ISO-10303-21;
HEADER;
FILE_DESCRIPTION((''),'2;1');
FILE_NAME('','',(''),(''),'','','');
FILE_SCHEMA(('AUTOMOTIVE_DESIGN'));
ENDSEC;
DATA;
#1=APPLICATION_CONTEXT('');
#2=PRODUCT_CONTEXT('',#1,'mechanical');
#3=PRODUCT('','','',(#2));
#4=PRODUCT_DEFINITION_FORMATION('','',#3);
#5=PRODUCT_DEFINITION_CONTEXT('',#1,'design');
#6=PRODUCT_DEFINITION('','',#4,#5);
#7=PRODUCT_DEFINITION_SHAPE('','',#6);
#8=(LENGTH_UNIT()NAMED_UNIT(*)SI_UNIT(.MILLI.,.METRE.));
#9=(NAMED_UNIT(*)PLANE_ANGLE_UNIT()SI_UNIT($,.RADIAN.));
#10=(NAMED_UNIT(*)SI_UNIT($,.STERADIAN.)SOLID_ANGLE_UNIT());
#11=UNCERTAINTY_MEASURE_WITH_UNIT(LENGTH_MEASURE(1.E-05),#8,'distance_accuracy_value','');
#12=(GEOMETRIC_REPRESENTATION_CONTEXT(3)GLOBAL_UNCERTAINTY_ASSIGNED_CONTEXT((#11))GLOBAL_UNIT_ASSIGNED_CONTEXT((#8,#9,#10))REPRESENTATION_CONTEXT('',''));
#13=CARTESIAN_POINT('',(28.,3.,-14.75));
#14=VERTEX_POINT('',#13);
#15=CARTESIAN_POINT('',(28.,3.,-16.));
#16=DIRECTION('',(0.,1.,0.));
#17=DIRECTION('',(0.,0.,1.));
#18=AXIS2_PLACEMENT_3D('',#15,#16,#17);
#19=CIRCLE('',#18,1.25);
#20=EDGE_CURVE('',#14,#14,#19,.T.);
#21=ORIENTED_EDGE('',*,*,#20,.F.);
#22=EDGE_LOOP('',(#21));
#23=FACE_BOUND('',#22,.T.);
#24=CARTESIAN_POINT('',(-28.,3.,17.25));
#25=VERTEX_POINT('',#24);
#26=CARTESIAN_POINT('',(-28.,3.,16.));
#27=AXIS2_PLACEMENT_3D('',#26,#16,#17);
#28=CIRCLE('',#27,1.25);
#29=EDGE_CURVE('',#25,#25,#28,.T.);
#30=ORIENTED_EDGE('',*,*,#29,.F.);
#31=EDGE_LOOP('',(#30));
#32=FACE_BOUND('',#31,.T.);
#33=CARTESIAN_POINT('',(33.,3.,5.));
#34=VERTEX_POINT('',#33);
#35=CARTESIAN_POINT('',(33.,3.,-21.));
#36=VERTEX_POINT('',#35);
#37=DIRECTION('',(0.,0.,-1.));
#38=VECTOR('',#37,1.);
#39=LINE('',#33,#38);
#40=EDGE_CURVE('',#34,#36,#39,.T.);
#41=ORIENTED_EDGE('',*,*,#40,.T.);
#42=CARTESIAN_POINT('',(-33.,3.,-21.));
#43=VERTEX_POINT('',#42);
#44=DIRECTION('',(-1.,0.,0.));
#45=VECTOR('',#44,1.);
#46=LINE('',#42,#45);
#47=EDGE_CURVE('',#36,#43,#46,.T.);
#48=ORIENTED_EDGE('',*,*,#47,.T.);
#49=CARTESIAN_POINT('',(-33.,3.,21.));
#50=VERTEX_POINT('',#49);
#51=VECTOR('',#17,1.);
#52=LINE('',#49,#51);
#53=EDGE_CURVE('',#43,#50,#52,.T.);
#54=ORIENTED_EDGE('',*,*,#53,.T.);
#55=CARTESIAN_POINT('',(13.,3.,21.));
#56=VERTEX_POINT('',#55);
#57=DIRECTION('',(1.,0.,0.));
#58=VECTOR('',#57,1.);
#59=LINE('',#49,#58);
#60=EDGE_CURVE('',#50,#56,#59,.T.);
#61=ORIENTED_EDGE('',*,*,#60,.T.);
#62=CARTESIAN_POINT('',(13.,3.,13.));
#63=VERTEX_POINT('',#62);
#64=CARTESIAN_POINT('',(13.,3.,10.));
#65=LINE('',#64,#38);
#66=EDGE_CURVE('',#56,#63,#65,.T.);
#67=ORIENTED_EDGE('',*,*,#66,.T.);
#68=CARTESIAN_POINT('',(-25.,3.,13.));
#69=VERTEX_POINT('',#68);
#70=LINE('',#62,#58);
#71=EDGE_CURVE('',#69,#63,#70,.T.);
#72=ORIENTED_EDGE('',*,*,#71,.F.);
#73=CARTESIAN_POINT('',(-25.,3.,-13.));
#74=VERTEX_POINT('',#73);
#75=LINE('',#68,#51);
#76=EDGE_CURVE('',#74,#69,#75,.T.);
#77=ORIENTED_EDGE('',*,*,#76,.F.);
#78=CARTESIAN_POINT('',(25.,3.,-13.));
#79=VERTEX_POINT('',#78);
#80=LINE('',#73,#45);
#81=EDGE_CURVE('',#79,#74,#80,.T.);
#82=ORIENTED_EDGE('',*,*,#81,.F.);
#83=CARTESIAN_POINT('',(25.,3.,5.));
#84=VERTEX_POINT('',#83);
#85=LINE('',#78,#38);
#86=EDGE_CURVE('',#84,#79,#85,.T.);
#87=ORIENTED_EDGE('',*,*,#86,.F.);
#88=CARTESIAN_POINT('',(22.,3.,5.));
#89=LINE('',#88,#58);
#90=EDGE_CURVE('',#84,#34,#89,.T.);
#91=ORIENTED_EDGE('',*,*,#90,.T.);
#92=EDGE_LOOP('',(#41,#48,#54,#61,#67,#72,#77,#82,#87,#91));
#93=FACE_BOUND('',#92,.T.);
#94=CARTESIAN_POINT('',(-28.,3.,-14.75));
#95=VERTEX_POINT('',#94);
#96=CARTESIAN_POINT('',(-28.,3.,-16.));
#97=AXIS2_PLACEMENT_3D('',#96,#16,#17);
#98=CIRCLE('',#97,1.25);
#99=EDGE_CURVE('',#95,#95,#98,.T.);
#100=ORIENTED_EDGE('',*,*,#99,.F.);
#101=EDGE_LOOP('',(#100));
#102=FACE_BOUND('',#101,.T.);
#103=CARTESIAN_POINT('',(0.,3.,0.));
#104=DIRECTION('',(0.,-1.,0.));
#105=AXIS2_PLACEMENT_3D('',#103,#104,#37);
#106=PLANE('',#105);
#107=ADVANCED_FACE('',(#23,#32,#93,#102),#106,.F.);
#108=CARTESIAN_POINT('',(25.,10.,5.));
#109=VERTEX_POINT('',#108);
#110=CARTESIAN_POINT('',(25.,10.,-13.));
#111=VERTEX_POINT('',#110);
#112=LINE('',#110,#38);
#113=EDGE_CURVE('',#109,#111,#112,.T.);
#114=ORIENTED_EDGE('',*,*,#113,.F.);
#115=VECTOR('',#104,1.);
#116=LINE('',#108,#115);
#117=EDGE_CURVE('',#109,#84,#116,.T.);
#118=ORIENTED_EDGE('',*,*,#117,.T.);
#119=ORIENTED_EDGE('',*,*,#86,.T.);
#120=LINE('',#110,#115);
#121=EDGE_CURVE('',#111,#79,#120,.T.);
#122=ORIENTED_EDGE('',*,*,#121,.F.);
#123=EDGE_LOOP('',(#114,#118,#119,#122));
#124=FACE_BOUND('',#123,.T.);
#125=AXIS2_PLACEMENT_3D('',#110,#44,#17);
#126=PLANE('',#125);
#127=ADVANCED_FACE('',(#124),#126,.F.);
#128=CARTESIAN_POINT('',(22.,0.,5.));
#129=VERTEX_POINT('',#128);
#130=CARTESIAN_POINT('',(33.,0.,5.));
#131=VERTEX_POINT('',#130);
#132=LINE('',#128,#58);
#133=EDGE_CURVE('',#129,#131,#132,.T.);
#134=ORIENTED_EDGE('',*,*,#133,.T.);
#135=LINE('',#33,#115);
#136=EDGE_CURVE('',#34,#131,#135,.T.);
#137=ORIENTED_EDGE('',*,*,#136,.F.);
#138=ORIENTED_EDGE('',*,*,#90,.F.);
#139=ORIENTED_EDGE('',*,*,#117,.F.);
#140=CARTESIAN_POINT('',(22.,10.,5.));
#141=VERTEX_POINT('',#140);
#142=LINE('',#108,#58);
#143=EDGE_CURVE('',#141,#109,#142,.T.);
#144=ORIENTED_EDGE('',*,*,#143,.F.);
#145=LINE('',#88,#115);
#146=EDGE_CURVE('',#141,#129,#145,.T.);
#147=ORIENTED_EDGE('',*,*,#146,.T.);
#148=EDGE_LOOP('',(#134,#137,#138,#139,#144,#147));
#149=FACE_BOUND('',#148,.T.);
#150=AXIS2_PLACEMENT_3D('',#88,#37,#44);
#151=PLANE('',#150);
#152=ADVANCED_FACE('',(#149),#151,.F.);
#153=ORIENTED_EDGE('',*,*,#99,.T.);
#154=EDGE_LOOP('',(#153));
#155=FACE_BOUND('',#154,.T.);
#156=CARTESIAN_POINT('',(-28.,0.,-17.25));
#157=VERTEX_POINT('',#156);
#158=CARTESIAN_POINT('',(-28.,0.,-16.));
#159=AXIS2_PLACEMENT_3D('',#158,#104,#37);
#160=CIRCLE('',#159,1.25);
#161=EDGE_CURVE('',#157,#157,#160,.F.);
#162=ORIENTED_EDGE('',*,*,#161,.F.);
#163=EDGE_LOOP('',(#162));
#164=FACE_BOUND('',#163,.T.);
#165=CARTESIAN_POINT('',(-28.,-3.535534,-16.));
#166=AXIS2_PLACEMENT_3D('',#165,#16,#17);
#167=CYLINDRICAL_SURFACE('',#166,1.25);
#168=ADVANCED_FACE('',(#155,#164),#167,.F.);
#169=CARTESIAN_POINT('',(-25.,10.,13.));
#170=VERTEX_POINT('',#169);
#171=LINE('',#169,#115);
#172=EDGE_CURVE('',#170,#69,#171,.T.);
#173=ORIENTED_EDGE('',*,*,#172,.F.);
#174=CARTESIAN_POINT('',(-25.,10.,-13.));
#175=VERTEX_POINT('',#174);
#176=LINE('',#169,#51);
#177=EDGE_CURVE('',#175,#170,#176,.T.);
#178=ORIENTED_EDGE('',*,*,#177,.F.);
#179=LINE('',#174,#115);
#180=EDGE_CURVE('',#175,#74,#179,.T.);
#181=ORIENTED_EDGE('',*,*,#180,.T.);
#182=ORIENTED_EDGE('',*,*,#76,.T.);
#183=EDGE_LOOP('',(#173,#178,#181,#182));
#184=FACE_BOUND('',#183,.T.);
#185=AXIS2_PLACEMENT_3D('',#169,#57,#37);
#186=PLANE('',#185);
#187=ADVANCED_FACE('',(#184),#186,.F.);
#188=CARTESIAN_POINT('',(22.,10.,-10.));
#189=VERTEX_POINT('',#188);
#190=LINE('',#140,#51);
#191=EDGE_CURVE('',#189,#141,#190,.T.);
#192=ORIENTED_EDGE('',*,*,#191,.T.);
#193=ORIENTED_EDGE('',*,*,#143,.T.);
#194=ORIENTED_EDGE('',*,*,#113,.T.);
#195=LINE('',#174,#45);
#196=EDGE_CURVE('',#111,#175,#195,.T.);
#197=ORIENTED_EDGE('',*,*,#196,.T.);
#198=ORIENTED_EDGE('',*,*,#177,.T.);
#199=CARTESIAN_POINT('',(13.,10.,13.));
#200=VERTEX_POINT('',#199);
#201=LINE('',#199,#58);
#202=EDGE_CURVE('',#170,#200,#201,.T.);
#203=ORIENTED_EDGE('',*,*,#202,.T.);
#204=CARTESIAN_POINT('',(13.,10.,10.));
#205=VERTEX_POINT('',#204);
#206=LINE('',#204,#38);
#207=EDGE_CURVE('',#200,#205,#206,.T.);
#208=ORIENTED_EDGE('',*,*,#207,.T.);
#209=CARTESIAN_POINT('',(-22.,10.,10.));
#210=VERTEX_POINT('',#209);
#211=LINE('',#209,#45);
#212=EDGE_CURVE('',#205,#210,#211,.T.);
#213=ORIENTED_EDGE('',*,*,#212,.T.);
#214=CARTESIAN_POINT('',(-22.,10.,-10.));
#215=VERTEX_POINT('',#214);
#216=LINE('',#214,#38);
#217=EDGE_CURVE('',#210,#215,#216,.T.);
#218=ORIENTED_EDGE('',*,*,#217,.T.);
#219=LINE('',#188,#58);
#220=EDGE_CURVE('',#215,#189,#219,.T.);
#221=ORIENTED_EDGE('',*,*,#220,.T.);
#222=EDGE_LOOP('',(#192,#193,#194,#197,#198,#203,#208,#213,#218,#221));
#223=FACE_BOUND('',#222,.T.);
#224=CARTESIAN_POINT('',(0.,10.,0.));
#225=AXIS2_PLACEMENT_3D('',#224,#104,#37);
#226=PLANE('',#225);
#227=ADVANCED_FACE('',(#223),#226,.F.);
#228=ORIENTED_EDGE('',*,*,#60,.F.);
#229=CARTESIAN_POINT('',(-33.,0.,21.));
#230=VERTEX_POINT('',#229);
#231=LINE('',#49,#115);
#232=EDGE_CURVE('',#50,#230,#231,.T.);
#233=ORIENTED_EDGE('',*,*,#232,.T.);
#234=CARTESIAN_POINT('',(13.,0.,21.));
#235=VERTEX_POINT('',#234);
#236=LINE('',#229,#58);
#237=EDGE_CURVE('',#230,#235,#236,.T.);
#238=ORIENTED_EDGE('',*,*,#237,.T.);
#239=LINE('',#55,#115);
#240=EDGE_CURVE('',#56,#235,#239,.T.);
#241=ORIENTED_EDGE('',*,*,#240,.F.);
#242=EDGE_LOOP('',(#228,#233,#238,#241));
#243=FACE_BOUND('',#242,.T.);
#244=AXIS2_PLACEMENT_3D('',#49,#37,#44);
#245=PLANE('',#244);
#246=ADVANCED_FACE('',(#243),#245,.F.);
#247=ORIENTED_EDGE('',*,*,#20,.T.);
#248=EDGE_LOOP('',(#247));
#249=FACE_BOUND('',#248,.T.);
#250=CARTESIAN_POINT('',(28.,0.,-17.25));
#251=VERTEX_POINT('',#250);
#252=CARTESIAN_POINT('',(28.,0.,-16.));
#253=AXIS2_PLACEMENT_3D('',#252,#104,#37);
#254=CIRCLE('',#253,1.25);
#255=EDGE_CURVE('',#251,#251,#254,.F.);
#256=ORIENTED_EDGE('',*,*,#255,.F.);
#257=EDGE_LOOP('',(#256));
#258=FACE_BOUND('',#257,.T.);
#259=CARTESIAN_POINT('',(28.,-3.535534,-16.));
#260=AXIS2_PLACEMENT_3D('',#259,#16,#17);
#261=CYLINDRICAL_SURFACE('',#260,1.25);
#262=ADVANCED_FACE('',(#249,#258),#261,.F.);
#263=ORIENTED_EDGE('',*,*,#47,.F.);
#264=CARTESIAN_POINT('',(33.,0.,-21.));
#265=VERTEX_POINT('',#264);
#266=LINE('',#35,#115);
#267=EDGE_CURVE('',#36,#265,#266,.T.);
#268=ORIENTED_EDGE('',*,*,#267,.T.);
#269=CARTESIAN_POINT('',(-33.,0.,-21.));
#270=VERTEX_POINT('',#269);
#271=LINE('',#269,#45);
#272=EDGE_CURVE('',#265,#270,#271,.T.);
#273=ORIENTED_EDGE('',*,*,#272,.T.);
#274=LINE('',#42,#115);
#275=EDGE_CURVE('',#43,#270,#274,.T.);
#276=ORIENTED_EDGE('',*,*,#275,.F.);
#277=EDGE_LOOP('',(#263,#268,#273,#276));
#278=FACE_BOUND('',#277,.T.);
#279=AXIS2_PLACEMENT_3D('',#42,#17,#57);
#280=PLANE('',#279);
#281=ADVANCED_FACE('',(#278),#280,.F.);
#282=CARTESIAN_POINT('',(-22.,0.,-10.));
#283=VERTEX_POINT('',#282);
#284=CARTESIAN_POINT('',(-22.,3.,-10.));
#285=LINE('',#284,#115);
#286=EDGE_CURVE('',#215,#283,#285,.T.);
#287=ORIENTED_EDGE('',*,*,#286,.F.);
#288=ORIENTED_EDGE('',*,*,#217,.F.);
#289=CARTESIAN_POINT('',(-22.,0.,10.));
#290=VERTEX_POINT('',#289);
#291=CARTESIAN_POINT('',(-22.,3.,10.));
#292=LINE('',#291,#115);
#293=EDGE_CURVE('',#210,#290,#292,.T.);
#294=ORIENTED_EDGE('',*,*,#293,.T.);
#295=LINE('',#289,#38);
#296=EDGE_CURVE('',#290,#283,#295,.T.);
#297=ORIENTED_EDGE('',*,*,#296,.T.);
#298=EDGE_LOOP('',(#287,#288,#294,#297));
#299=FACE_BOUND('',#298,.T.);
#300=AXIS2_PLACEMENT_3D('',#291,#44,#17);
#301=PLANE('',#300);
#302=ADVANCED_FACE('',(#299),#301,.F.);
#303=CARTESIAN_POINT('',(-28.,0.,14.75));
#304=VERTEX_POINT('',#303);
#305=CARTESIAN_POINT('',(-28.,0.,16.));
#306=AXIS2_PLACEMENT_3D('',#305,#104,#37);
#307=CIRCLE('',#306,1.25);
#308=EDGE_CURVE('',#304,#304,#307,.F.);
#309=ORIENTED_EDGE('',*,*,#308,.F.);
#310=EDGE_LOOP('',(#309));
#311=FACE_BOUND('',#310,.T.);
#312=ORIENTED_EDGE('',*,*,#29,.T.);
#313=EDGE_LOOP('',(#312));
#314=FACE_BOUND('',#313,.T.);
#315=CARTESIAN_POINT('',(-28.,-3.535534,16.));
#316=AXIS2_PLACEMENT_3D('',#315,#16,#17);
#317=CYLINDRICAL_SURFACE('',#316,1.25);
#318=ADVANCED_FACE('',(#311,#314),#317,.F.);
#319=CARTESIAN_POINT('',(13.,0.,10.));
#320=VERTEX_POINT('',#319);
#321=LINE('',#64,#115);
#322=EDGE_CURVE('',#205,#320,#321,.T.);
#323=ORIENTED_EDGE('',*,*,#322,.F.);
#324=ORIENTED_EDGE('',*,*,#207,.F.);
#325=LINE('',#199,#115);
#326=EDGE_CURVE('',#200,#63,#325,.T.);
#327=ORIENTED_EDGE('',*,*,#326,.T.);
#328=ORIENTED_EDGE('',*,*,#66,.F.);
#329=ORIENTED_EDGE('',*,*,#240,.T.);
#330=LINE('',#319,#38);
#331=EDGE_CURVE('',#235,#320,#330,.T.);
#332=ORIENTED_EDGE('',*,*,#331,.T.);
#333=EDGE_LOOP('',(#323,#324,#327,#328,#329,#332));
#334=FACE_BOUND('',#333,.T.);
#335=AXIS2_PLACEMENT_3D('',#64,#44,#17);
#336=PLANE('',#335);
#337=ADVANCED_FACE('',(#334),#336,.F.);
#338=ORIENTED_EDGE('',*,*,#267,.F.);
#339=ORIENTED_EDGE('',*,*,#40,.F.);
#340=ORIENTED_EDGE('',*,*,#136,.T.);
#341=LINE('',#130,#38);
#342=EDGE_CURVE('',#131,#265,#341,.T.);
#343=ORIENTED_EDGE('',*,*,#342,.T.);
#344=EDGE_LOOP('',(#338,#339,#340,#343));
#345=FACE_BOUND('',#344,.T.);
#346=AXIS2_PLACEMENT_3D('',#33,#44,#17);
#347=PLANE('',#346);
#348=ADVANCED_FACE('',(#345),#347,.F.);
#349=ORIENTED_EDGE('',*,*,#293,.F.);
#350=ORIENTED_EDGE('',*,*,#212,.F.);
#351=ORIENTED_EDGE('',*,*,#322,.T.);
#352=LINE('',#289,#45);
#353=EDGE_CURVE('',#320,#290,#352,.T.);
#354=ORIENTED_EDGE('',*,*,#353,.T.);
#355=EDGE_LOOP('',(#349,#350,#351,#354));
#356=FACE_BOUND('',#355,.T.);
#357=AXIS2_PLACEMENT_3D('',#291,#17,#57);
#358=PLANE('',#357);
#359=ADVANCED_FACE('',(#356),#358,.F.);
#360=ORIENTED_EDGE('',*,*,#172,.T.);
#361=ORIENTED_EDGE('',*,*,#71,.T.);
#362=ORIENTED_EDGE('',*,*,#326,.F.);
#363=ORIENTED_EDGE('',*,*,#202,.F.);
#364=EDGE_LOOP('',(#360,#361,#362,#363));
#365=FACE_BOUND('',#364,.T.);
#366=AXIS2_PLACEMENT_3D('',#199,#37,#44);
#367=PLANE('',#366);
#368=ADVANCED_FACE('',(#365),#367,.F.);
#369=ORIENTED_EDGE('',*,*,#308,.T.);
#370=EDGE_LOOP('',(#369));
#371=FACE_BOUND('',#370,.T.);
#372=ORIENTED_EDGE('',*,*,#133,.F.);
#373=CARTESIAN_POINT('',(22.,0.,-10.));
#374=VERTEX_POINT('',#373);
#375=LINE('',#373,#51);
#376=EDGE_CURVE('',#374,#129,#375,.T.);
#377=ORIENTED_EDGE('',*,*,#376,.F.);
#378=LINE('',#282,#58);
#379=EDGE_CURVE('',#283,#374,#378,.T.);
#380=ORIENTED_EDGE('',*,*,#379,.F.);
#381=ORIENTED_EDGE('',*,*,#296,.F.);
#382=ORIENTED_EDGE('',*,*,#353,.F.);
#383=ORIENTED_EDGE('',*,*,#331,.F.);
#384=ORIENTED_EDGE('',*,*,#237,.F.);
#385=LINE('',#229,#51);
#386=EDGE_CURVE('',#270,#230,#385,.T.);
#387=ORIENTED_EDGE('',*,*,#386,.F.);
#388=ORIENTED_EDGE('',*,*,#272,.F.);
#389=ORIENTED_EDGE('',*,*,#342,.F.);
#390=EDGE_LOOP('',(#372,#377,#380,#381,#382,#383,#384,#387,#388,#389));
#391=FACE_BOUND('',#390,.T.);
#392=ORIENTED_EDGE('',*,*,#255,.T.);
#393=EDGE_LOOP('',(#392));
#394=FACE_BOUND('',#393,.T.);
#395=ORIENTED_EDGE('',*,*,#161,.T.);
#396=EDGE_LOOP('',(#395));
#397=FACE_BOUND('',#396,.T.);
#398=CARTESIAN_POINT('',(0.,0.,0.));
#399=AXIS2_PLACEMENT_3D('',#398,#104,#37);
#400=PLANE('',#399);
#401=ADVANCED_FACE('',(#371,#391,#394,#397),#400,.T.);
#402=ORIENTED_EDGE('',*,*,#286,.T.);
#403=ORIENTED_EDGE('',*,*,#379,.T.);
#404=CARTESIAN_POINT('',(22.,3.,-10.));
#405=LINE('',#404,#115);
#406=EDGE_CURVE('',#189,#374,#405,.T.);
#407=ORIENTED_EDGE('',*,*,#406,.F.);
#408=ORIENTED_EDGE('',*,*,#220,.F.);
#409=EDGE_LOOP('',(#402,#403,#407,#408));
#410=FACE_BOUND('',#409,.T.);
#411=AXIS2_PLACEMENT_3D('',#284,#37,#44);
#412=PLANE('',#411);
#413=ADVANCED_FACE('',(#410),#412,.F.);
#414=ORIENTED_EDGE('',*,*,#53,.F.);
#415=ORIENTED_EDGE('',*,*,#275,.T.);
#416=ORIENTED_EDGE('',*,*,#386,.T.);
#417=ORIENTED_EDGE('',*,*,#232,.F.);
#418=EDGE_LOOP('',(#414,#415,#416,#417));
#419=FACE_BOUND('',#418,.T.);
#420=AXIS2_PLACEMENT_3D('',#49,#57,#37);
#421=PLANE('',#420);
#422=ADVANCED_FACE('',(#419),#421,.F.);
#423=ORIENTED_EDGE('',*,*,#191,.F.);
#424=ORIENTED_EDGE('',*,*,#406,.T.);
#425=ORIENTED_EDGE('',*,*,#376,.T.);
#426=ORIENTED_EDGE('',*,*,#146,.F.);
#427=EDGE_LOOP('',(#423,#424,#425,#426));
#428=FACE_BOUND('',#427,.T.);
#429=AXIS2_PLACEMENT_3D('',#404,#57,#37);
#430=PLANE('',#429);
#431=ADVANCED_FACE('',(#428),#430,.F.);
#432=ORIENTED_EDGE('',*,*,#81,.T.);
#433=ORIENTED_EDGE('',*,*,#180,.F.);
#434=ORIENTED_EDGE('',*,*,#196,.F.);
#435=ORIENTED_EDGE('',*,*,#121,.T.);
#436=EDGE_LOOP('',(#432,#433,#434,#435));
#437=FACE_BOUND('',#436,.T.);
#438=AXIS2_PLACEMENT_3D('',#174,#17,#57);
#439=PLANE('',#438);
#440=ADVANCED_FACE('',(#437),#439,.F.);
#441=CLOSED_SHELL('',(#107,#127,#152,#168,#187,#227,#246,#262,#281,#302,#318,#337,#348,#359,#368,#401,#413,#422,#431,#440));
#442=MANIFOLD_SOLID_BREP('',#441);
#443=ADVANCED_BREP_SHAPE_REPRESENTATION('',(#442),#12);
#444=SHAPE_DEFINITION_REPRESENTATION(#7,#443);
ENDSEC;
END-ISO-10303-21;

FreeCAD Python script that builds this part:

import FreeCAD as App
import Part
import Sketcher
from FreeCAD import Vector
Q = App.Units.Quantity


def add_polygon(sketch, points):
    """Adds a closed chain of lines whose ends are joined by coincident constraints."""
    first, n = sketch.GeometryCount, len(points)
    for a, b in zip(points, points[1:] + points[:1]):
        sketch.addGeometry(Part.LineSegment(App.Vector(*a, 0), App.Vector(*b, 0)), False)
    for i in range(n):
        sketch.addConstraint(Sketcher.Constraint("Coincident", first + i, 2, first + (i + 1) % n, 1))

doc = App.newDocument("Part")
params = doc.addObject("Spreadsheet::Sheet", "Params")
for row, (alias, value) in enumerate([
    ("sketch1_width", "35 mm"),
    ("sketch1_width2", "44 mm"),
    ("sketch1_width3", "11 mm"),
    ("sketch1_height", "20 mm"),
    ("sketch1_height2", "15 mm"),
    ("pad1_length", "3 mm"),
    ("sketch2_width", "35 mm"),
    ("sketch2_width2", "44 mm"),
    ("sketch2_width3", "3 mm"),
    ("sketch2_height", "20 mm"),
    ("sketch2_height2", "15 mm"),
    ("pad2_length", "7 mm"),
    ("sketch3_diameter", "2.5 mm"),
    ("pocket1_length", "3 mm"),
], start=1):
    params.set(f"A{row}", alias)
    params.set(f"B{row}", "=" + value)
    params.setAlias(f"B{row}", alias)

body = doc.addObject("PartDesign::Body", "Body")

# Sketch on XZ plane
sketch1 = doc.addObject("Sketcher::SketchObject", "Sketch")
body.addObject(sketch1)
sketch1.AttachmentSupport = (doc.XZ_Plane, [""])
sketch1.MapMode = "FlatFace"
add_polygon(sketch1, [(13, 21), (13, 10), (-22, 10), (-22, -10), (22, -10), (22, 5), (33, 5), (33, -21), (-33, -21), (-33, 21)])  # lines 0-9
sketch1.addConstraint([
    Sketcher.Constraint("Vertical", 0),
    Sketcher.Constraint("Horizontal", 1),
    Sketcher.Constraint("Vertical", 2),
    Sketcher.Constraint("Horizontal", 3),
    Sketcher.Constraint("Vertical", 4),
    Sketcher.Constraint("Horizontal", 5),
    Sketcher.Constraint("Vertical", 6),
    Sketcher.Constraint("Horizontal", 7),
    Sketcher.Constraint("Vertical", 8),
    Sketcher.Constraint("Horizontal", 9),
    Sketcher.Constraint("Symmetric", 1, 2, 3, 2, -1, 1),
    Sketcher.Constraint("Symmetric", 6, 2, 8, 2, -1, 1),
    Sketcher.Constraint("Equal", 5, 0),
    Sketcher.Constraint("DistanceX", 1, 2, 1, 1, Q("35 mm")),
    Sketcher.Constraint("DistanceX", 3, 1, 3, 2, Q("44 mm")),
    Sketcher.Constraint("DistanceX", 5, 1, 5, 2, Q("11 mm")),
    Sketcher.Constraint("DistanceY", 2, 2, 2, 1, Q("20 mm")),
    Sketcher.Constraint("DistanceY", 4, 1, 4, 2, Q("15 mm")),
])
sketch1.setExpression("Constraints[23]", "Params.sketch1_width")
sketch1.setExpression("Constraints[24]", "Params.sketch1_width2")
sketch1.setExpression("Constraints[25]", "Params.sketch1_width3")
sketch1.setExpression("Constraints[26]", "Params.sketch1_height")
sketch1.setExpression("Constraints[27]", "Params.sketch1_height2")
pad1 = doc.addObject("PartDesign::Pad", "Pad")
body.addObject(pad1)
pad1.Profile = sketch1
pad1.setExpression("Length", "Params.pad1_length")
pad1.Reversed = True

# Sketch on XZ plane
sketch2 = doc.addObject("Sketcher::SketchObject", "Sketch001")
body.addObject(sketch2)
sketch2.AttachmentSupport = (doc.XZ_Plane, [""])
sketch2.MapMode = "FlatFace"
sketch2.AttachmentOffset = App.Placement(Vector(0, 0, -3), App.Rotation())
add_polygon(sketch2, [(13, 13), (13, 10), (-22, 10), (-22, -10), (22, -10), (22, 5), (25, 5), (25, -13), (-25, -13), (-25, 13)])  # lines 0-9
sketch2.addConstraint([
    Sketcher.Constraint("Vertical", 0),
    Sketcher.Constraint("Horizontal", 1),
    Sketcher.Constraint("Vertical", 2),
    Sketcher.Constraint("Horizontal", 3),
    Sketcher.Constraint("Vertical", 4),
    Sketcher.Constraint("Horizontal", 5),
    Sketcher.Constraint("Vertical", 6),
    Sketcher.Constraint("Horizontal", 7),
    Sketcher.Constraint("Vertical", 8),
    Sketcher.Constraint("Horizontal", 9),
    Sketcher.Constraint("Symmetric", 1, 2, 3, 2, -1, 1),
    Sketcher.Constraint("Symmetric", 6, 2, 8, 2, -1, 1),
    Sketcher.Constraint("Equal", 5, 0),
    Sketcher.Constraint("DistanceX", 1, 2, 1, 1, Q("35 mm")),
    Sketcher.Constraint("DistanceX", 3, 1, 3, 2, Q("44 mm")),
    Sketcher.Constraint("DistanceX", 5, 1, 5, 2, Q("3 mm")),
    Sketcher.Constraint("DistanceY", 2, 2, 2, 1, Q("20 mm")),
    Sketcher.Constraint("DistanceY", 4, 1, 4, 2, Q("15 mm")),
])
sketch2.setExpression("Constraints[23]", "Params.sketch2_width")
sketch2.setExpression("Constraints[24]", "Params.sketch2_width2")
sketch2.setExpression("Constraints[25]", "Params.sketch2_width3")
sketch2.setExpression("Constraints[26]", "Params.sketch2_height")
sketch2.setExpression("Constraints[27]", "Params.sketch2_height2")
pad2 = doc.addObject("PartDesign::Pad", "Pad001")
body.addObject(pad2)
pad2.Profile = sketch2
pad2.setExpression("Length", "Params.pad2_length")
pad2.Reversed = True

# Sketch on XZ plane
sketch3 = doc.addObject("Sketcher::SketchObject", "Sketch002")
body.addObject(sketch3)
sketch3.AttachmentSupport = (doc.XZ_Plane, [""])
sketch3.MapMode = "FlatFace"
sketch3.AttachmentOffset = App.Placement(Vector(0, 0, -3), App.Rotation())
sketch3.addGeometry([
    Part.Circle(Vector(-28, 16, 0), Vector(0, 0, 1), 1.2),
    Part.Circle(Vector(-28, -16, 0), Vector(0, 0, 1), 1.2),
    Part.Circle(Vector(28, -16, 0), Vector(0, 0, 1), 1.2),
], False)
sketch3.addConstraint([
    Sketcher.Constraint("Equal", 0, 1),
    Sketcher.Constraint("Equal", 1, 2),
    Sketcher.Constraint("Symmetric", 0, 3, 2, 3, -1, 1),
    Sketcher.Constraint("Symmetric", 1, 3, 2, 3, -2),
    Sketcher.Constraint("Diameter", 0, Q("2.5 mm")),
    Sketcher.Constraint("DistanceX", 0, 3, -1, 1, Q("28 mm")),
    Sketcher.Constraint("DistanceY", -1, 1, 0, 3, Q("16 mm")),
])
sketch3.setExpression("Constraints[4]", "Params.sketch3_diameter")
pocket1 = doc.addObject("PartDesign::Pocket", "Pocket")
body.addObject(pocket1)
pocket1.Profile = sketch3
pocket1.setExpression("Length", "Params.pocket1_length")
pocket1.Reversed = True

doc.recompute()
